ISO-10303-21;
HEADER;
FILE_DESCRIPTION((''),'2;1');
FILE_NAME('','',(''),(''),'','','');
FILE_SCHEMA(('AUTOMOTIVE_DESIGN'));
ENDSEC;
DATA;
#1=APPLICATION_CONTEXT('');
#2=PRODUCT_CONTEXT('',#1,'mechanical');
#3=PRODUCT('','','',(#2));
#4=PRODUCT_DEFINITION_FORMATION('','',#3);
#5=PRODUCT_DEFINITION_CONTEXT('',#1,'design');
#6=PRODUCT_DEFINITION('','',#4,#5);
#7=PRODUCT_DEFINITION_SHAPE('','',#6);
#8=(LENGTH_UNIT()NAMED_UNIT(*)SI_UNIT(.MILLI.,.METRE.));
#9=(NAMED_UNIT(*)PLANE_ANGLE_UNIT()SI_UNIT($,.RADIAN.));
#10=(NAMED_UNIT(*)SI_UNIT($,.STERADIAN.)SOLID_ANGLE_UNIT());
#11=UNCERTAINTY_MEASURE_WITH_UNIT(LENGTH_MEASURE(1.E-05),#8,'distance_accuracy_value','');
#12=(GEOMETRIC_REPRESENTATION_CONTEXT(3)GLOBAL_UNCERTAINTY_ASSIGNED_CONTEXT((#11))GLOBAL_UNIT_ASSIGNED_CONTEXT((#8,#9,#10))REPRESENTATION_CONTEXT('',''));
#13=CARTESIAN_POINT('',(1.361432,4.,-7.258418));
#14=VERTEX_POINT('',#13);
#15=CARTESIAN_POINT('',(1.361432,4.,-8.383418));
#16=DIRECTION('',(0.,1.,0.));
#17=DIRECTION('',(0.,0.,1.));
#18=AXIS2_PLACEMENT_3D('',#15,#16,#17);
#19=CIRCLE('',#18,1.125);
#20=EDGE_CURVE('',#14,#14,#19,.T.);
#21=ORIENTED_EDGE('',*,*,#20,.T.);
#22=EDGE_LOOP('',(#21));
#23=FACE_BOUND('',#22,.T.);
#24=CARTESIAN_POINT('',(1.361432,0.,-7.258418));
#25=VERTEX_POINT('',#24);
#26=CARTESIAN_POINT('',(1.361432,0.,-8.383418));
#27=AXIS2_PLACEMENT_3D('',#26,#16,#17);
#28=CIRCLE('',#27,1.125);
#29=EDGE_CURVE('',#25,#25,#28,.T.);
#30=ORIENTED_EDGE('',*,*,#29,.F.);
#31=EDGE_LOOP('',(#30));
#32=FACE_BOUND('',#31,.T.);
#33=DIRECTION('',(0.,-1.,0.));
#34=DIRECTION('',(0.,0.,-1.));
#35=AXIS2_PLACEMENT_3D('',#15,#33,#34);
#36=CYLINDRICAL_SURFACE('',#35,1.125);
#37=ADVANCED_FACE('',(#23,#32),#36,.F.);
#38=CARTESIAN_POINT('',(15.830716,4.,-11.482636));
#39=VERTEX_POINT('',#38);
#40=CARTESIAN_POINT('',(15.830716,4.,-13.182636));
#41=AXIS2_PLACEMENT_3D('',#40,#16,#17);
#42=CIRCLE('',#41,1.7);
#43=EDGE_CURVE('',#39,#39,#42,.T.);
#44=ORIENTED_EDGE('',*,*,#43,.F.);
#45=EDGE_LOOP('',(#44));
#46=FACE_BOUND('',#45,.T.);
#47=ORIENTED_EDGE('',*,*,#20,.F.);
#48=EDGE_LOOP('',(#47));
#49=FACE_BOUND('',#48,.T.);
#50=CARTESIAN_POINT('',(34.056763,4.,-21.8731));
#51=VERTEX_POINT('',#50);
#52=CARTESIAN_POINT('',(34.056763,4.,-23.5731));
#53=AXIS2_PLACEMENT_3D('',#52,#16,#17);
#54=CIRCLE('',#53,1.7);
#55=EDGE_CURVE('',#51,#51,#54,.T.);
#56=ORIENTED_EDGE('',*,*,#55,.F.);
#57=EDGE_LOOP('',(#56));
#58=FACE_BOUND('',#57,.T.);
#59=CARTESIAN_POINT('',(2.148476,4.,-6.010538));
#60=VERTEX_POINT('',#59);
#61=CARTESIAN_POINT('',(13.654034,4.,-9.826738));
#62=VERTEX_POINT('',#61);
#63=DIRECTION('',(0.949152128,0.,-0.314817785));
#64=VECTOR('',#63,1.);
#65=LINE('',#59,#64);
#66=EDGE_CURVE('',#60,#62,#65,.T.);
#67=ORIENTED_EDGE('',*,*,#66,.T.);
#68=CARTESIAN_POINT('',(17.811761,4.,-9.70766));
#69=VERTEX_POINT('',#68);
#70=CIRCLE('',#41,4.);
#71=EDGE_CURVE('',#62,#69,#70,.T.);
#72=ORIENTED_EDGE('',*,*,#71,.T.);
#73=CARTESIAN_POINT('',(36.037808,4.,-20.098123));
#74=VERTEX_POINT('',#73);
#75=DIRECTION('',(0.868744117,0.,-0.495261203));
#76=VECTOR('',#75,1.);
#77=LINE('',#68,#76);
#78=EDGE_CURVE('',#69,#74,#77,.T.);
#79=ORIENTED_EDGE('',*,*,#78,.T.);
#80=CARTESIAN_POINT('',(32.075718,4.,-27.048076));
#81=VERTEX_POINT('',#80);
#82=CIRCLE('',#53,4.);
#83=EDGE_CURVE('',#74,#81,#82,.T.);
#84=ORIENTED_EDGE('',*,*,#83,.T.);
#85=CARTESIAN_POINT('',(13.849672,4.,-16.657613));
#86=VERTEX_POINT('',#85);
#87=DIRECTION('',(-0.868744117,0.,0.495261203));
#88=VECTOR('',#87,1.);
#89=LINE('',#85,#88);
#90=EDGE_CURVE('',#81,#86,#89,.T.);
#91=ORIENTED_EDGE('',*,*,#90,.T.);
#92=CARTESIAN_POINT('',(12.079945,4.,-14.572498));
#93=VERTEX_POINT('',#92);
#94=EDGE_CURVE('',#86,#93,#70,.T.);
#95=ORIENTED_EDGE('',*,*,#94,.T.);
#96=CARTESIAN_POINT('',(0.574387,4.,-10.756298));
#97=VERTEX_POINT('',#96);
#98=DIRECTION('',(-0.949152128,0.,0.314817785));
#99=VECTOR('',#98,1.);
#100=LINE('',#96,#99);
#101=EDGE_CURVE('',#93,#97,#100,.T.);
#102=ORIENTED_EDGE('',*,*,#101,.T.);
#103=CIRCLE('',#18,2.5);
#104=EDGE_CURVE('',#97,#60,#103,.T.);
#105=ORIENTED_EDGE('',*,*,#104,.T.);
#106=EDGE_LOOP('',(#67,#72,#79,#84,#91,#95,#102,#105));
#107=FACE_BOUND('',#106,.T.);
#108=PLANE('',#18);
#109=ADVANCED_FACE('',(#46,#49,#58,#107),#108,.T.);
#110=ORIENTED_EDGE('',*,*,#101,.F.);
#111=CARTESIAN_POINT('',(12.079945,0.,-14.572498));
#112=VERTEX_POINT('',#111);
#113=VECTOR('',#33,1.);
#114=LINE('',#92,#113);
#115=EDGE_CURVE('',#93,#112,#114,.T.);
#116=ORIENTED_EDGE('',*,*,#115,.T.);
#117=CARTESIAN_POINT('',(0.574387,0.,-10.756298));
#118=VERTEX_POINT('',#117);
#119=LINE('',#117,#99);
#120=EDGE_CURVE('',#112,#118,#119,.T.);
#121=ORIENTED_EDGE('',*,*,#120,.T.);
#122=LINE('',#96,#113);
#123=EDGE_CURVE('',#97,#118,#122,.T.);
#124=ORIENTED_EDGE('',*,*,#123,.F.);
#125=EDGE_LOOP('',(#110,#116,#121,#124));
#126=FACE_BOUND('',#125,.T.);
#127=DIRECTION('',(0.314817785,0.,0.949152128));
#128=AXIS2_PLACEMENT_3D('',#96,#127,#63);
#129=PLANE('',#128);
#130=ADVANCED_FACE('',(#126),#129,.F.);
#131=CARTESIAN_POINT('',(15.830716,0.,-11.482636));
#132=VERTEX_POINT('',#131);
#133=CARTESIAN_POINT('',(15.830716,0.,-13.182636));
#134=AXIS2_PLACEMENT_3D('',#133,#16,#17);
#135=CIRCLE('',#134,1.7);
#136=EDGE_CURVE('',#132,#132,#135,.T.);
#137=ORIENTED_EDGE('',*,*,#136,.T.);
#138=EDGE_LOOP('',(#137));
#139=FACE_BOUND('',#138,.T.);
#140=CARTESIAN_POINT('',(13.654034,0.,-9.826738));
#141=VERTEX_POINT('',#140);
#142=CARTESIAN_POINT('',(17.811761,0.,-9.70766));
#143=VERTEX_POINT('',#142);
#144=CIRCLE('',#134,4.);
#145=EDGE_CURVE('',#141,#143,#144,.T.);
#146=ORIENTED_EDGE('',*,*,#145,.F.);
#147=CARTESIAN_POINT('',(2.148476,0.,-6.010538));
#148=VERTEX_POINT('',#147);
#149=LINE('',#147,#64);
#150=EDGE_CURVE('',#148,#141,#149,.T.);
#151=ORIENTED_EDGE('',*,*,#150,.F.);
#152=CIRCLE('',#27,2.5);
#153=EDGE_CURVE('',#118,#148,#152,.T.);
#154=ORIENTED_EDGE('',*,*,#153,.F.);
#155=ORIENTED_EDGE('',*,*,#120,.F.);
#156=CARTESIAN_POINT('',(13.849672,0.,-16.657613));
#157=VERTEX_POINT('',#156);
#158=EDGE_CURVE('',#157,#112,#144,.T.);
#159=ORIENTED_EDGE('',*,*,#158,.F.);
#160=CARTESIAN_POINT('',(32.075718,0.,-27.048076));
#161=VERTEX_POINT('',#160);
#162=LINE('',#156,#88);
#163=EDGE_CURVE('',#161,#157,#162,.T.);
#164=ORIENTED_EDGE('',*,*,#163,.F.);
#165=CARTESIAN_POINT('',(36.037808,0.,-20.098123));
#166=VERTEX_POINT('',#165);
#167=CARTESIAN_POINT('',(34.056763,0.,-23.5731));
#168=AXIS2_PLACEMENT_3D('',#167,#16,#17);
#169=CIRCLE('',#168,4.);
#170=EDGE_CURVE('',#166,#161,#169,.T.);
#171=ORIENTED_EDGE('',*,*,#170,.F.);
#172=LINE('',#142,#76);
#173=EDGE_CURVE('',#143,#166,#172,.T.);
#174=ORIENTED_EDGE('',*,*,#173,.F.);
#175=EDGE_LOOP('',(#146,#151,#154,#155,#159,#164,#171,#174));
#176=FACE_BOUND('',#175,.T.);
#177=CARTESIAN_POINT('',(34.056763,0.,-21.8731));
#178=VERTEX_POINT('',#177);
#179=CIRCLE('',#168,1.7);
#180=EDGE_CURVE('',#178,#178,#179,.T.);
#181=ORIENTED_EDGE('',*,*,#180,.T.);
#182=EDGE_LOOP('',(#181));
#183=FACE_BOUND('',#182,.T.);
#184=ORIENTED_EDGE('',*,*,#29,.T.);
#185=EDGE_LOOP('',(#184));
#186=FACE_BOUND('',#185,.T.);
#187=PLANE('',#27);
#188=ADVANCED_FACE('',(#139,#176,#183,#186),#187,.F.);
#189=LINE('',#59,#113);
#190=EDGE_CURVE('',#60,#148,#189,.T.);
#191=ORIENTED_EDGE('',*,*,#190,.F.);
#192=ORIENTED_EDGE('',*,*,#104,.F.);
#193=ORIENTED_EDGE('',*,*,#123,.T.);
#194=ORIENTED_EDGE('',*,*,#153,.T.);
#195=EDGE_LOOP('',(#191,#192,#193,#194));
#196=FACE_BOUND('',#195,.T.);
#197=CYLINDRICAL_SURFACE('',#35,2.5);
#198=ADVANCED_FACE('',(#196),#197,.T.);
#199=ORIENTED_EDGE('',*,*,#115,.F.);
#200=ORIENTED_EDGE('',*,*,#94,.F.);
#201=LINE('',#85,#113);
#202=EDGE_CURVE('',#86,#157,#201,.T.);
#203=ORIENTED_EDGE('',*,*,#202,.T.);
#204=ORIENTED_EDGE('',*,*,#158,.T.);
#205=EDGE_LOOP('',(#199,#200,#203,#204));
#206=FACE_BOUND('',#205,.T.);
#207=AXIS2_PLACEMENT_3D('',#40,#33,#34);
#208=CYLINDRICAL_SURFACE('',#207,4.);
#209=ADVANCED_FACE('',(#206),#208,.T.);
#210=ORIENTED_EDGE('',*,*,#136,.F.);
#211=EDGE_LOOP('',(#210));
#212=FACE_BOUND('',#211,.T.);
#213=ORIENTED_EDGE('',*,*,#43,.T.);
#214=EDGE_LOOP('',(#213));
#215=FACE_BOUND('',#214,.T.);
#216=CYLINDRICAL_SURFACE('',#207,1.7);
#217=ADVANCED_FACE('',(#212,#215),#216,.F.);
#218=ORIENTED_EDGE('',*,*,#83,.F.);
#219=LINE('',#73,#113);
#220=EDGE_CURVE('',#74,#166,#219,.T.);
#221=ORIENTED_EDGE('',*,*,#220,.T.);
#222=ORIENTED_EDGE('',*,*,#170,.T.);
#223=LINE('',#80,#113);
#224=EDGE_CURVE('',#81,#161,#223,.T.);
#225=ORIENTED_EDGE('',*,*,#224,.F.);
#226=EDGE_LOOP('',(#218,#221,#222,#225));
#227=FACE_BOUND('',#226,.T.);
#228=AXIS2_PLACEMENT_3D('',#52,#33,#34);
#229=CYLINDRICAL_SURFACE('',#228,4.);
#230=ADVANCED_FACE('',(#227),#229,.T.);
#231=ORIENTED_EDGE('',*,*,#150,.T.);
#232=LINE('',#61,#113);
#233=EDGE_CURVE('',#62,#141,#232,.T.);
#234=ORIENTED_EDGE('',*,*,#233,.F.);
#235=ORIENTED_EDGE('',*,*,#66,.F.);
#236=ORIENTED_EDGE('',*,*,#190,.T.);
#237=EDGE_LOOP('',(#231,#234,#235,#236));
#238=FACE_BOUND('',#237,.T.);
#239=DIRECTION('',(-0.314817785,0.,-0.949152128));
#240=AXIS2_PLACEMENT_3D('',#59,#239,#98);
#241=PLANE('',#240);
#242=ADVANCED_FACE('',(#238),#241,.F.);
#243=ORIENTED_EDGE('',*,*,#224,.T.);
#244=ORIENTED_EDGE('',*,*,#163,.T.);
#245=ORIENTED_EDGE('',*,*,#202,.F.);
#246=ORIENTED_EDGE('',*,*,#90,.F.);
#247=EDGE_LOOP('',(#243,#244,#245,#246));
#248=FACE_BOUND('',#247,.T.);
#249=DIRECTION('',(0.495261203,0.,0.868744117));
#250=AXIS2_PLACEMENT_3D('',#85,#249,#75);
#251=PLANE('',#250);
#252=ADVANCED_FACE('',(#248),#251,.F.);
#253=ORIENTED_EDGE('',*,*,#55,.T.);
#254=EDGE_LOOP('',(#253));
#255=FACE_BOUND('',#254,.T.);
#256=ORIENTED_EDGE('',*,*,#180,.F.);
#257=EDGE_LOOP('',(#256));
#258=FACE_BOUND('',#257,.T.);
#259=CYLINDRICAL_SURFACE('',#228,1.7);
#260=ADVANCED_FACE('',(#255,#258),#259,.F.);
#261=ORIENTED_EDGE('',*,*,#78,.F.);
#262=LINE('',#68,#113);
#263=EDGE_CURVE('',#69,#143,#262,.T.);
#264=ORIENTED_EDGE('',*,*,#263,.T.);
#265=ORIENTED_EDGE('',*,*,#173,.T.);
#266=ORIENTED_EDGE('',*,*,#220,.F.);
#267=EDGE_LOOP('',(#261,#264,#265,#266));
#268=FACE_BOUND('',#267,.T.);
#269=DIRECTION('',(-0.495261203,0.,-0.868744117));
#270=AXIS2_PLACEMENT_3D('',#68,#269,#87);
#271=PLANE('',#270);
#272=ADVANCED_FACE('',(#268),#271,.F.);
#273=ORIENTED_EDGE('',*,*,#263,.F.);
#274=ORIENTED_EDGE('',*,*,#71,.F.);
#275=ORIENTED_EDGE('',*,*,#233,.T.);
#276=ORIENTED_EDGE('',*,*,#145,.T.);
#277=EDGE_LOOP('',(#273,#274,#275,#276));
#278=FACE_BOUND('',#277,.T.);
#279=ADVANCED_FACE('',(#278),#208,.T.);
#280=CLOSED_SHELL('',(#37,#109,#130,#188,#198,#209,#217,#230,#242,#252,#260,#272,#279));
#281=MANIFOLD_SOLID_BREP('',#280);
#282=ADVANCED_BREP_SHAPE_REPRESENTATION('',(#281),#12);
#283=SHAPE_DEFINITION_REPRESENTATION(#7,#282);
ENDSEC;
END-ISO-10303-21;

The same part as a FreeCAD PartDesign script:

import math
import FreeCAD as App
import Part
import Sketcher
Q = App.Units.Quantity

doc = App.newDocument("Part")
body = doc.addObject("PartDesign::Body", "Body")

# Sketch on XZ plane
sketch1 = body.newObject("Sketcher::SketchObject", "Sketch")
sketch1.AttachmentSupport = (doc.getObject("XZ_Plane"), [""])
sketch1.MapMode = "FlatFace"
sketch1.addGeometry([
    Part.LineSegment(App.Vector(12.079945, -14.572498, 0), App.Vector(0.574387, -10.756298, 0)),  # 0
    Part.ArcOfCircle(Part.Circle(App.Vector(1.361432, -8.383418, 0), App.Vector(0, 0, 1), 2.5), math.radians(71.650186), math.radians(251.650186)),  # 1
    Part.LineSegment(App.Vector(2.148476, -6.010538, 0), App.Vector(13.654034, -9.826738, 0)),  # 2
    Part.ArcOfCircle(Part.Circle(App.Vector(15.830716, -13.182636, 0), App.Vector(0, 0, 1), 4), math.radians(60.313024), math.radians(122.967999)),  # 3
    Part.LineSegment(App.Vector(17.811761, -9.70766, 0), App.Vector(36.037808, -20.098123, 0)),  # 4
    Part.ArcOfCircle(Part.Circle(App.Vector(34.056763, -23.5731, 0), App.Vector(0, 0, 1), 4), math.radians(-119.686976), math.radians(60.313024)),  # 5
    Part.LineSegment(App.Vector(32.075718, -27.048076, 0), App.Vector(13.849672, -16.657613, 0)),  # 6
    Part.ArcOfCircle(Part.Circle(App.Vector(15.830716, -13.182636, 0), App.Vector(0, 0, 1), 4), math.radians(-159.667627), math.radians(-119.686976)),  # 7
    Part.Circle(App.Vector(1.361432, -8.383418, 0), App.Vector(0, 0, 1), 1.125),  # 8
    Part.Circle(App.Vector(15.830716, -13.182636, 0), App.Vector(0, 0, 1), 1.7),  # 9
    Part.Circle(App.Vector(34.056763, -23.5731, 0), App.Vector(0, 0, 1), 1.7),  # 10
], False)
sketch1.addConstraint([
    Sketcher.Constraint("Coincident", 0, 2, 1, 2),
    Sketcher.Constraint("Coincident", 1, 1, 2, 1),
    Sketcher.Constraint("Coincident", 2, 2, 3, 2),
    Sketcher.Constraint("Coincident", 3, 1, 4, 1),
    Sketcher.Constraint("Coincident", 4, 2, 5, 2),
    Sketcher.Constraint("Coincident", 5, 1, 6, 1),
    Sketcher.Constraint("Coincident", 6, 2, 7, 2),
    Sketcher.Constraint("Coincident", 7, 1, 0, 1),
    Sketcher.Constraint("Coincident", 7, 3, 3, 3),
    Sketcher.Constraint("Coincident", 8, 3, 1, 3),
    Sketcher.Constraint("Coincident", 9, 3, 3, 3),
    Sketcher.Constraint("Coincident", 10, 3, 5, 3),
    Sketcher.Constraint("Radius", 3, Q("4 mm")),
    Sketcher.Constraint("Radius", 5, Q("4 mm")),
    Sketcher.Constraint("Radius", 7, Q("4 mm")),
    Sketcher.Constraint("Diameter", 9, Q("3.4 mm")),
    Sketcher.Constraint("Diameter", 10, Q("3.4 mm")),
    Sketcher.Constraint("Radius", 1, Q("2.5 mm")),
    Sketcher.Constraint("Diameter", 8, Q("2.25 mm")),
    Sketcher.Constraint("DistanceY", 5, 3, -1, 1, Q("23.5731 mm")),
    Sketcher.Constraint("DistanceY", 0, 2, -1, 1, Q("10.756298 mm")),
    Sketcher.Constraint("DistanceY", 7, 1, -1, 1, Q("14.572498 mm")),
    Sketcher.Constraint("DistanceY", 3, 3, 1, 1, Q("7.172098 mm")),
    Sketcher.Constraint("DistanceY", 3, 3, 2, 2, Q("3.355899 mm")),
    Sketcher.Constraint("DistanceX", -1, 1, 1, 3, Q("1.361432 mm")),
    Sketcher.Constraint("DistanceY", 1, 3, -1, 1, Q("8.383418 mm")),
    Sketcher.Constraint("DistanceX", -1, 1, 3, 1, Q("17.811761 mm")),
    Sketcher.Constraint("DistanceY", 3, 1, -1, 1, Q("9.70766 mm")),
    Sketcher.Constraint("DistanceX", -1, 1, 4, 2, Q("36.037808 mm")),
    Sketcher.Constraint("DistanceX", -1, 1, 5, 1, Q("32.075718 mm")),
    Sketcher.Constraint("DistanceX", -1, 1, 6, 2, Q("13.849672 mm")),
    Sketcher.Constraint("DistanceY", 3, 3, 1, 3, Q("4.799218 mm")),
    Sketcher.Constraint("DistanceX", 1, 3, 5, 3, Q("32.695331 mm")),
])
pad1 = body.newObject("PartDesign::Pad", "Pad")
pad1.Profile = sketch1
pad1.Length = 4
pad1.Reversed = True

doc.recompute()
